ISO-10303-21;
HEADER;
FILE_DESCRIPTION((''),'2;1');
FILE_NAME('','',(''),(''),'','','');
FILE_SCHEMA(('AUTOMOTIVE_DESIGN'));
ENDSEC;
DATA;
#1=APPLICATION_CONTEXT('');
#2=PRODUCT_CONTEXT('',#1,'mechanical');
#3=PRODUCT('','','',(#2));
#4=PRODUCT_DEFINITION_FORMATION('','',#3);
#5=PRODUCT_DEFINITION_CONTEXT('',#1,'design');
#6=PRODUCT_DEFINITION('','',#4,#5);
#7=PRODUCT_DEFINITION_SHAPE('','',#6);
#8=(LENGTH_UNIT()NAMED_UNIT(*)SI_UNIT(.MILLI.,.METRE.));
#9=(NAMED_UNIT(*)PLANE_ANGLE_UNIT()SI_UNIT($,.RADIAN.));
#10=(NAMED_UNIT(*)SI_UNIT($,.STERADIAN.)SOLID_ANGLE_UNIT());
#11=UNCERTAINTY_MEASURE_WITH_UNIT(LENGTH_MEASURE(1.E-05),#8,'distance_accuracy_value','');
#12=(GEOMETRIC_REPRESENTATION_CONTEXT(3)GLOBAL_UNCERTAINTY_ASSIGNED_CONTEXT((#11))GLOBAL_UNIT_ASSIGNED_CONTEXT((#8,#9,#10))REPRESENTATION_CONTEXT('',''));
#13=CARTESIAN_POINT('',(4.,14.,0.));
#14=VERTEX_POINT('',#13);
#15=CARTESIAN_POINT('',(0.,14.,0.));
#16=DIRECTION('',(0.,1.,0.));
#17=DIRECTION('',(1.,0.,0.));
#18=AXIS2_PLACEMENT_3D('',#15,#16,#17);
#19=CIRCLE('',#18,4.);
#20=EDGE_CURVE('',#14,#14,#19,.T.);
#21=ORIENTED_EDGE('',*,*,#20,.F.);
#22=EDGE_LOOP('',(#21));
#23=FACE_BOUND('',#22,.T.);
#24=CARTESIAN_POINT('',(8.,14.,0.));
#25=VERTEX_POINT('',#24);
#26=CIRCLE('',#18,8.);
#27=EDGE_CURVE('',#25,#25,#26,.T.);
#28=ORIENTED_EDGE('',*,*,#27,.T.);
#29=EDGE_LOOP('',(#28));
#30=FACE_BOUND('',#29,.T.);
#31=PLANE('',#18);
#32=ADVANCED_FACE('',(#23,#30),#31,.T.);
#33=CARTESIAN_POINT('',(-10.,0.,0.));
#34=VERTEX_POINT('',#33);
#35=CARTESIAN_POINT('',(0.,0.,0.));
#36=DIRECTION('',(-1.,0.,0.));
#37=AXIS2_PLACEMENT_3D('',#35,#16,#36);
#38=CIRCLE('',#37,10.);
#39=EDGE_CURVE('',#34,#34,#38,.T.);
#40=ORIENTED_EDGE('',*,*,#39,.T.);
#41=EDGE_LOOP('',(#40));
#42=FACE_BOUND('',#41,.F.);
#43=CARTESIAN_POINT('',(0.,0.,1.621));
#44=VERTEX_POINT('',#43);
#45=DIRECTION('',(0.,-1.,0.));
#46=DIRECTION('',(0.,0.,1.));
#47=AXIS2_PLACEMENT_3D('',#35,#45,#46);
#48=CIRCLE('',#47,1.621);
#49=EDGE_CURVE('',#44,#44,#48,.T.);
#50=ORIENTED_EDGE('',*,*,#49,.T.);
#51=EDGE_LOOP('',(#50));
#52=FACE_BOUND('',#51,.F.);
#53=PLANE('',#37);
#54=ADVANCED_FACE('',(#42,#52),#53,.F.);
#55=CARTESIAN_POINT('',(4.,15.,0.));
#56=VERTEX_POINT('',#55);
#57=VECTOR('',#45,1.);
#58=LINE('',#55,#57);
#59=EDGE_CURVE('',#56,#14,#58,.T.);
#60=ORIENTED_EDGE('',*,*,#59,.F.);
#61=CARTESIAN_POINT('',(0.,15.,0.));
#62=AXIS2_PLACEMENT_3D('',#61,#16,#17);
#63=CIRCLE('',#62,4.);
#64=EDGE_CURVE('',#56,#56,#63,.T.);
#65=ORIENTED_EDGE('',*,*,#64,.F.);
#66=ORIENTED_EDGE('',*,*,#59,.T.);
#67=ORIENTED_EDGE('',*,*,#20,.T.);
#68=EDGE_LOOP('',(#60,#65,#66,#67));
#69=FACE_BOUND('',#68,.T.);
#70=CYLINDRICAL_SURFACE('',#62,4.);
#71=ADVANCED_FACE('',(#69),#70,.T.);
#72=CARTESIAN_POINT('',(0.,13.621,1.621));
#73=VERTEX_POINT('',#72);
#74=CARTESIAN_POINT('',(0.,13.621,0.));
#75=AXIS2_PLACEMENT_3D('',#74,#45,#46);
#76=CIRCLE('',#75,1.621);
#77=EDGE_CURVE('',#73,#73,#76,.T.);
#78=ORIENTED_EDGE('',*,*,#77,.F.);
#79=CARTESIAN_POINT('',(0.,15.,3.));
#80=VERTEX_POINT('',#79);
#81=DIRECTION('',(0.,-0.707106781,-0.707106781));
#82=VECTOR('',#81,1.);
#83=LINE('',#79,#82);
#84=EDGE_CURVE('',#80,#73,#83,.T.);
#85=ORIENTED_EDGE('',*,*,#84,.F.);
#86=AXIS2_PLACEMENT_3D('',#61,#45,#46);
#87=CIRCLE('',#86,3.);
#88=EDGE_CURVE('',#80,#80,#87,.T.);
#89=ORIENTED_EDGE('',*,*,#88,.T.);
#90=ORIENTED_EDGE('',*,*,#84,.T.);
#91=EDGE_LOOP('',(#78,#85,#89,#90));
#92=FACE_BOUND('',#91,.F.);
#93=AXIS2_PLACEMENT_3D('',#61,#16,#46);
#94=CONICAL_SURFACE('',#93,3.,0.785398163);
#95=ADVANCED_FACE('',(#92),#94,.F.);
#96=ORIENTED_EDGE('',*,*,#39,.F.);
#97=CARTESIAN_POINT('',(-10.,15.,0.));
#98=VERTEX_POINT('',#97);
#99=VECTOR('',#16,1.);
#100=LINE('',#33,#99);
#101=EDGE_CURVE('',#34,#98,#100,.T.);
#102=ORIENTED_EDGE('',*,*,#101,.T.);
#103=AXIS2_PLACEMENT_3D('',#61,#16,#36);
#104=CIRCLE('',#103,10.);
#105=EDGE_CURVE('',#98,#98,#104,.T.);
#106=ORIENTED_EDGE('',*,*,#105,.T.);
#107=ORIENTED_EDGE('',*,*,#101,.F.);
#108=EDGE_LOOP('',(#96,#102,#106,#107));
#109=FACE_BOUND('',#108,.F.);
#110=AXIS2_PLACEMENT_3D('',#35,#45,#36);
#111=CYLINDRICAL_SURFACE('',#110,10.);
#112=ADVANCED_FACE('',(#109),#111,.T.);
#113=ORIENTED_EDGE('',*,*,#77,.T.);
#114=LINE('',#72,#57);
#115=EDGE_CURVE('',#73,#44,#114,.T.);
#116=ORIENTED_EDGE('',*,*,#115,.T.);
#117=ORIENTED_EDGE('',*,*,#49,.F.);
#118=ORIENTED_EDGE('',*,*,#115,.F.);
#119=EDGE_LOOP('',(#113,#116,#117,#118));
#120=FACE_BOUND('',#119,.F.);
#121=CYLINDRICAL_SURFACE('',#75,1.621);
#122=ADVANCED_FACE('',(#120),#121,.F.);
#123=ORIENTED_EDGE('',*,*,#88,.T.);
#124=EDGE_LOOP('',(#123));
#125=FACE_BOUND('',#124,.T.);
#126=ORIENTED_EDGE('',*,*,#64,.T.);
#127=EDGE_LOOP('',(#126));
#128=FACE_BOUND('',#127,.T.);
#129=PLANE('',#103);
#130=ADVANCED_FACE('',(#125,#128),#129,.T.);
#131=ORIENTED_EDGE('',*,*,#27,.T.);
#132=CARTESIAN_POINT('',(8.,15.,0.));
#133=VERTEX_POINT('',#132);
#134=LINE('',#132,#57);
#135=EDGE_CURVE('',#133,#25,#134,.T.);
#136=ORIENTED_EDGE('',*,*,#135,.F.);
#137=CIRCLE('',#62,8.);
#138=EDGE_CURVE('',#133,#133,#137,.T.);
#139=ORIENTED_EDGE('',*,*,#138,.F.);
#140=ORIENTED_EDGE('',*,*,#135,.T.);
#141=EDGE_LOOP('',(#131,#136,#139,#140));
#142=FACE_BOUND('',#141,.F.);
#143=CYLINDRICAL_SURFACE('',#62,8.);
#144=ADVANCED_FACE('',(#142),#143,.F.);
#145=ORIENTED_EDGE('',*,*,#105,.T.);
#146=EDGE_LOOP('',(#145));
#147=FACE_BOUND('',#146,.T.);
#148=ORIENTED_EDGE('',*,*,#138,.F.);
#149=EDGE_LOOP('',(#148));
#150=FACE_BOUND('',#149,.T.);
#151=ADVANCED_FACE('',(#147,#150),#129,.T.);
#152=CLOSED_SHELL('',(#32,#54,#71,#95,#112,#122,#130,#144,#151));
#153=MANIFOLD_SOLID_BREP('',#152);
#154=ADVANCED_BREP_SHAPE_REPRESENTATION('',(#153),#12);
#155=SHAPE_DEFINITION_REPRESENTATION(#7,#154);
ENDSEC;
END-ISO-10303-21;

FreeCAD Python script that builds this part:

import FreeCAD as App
import Part
import Sketcher

V = App.Vector
Q = App.Units.Quantity

doc = App.newDocument("Part")
body = doc.addObject("PartDesign::Body", "Body")

sketch1 = body.newObject("Sketcher::SketchObject", "Sketch")
sketch1.AttachmentSupport = (doc.getObject("XZ_Plane"), [""])
sketch1.MapMode = "FlatFace"
sketch1.addGeometry(Part.Circle(V(0, 0, 0), V(0, 0, 1), 10), False)
sketch1.addConstraint([
    Sketcher.Constraint("Coincident", 0, 3, -1, 1),
    Sketcher.Constraint("Diameter", 0, Q("20 mm")),
])
pad1 = body.newObject("PartDesign::Pad", "Pad")
pad1.Profile = sketch1
pad1.Length = 15
pad1.Reversed = True

sketch2 = body.newObject("Sketcher::SketchObject", "Sketch001")
sketch2.AttachmentSupport = (doc.getObject("XZ_Plane"), [""])
sketch2.MapMode = "FlatFace"
sketch2.AttachmentOffset = App.Placement(V(0, 0, -15), App.Rotation())
sketch2.addGeometry([
    Part.Circle(V(0, 0, 0), V(0, 0, 1), 8),
    Part.Circle(V(0, 0, 0), V(0, 0, 1), 4),
], False)
sketch2.addConstraint([
    Sketcher.Constraint("Coincident", 0, 3, -1, 1),
    Sketcher.Constraint("Coincident", 1, 3, -1, 1),
    Sketcher.Constraint("Diameter", 0, Q("16 mm")),
    Sketcher.Constraint("Diameter", 1, Q("8 mm")),
])
pocket1 = body.newObject("PartDesign::Pocket", "Pocket")
pocket1.Profile = sketch2
pocket1.Length = 9
pocket1.Reversed = True

sketch3 = body.newObject("Sketcher::SketchObject", "Sketch002")
sketch3.AttachmentSupport = (doc.getObject("XZ_Plane"), [""])
sketch3.MapMode = "FlatFace"
sketch3.AttachmentOffset = App.Placement(V(0, 0, -6), App.Rotation())
sketch3.addGeometry([
    Part.Circle(V(0, 0, 0), V(0, 0, 1), 8),
    Part.Circle(V(0, 0, 0), V(0, 0, 1), 4),
], False)
sketch3.addConstraint([
    Sketcher.Constraint("Coincident", 0, 3, -1, 1),
    Sketcher.Constraint("Coincident", 1, 3, -1, 1),
    Sketcher.Constraint("Diameter", 0, Q("16 mm")),
    Sketcher.Constraint("Diameter", 1, Q("8 mm")),
])
pad2 = body.newObject("PartDesign::Pad", "Pad001")
pad2.Profile = sketch3
pad2.Length = 8
pad2.Reversed = True

sketch4 = body.newObject("Sketcher::SketchObject", "Sketch003")
sketch4.AttachmentSupport = (doc.getObject("XZ_Plane"), [""])
sketch4.MapMode = "FlatFace"
sketch4.AttachmentOffset = App.Placement(V(0, 0, -15), App.Rotation())
sketch4.addGeometry(Part.Circle(V(0, 0, 0), V(0, 0, 1), 1.6), False)
sketch4.addConstraint([
    Sketcher.Constraint("Coincident", 0, 3, -1, 1),
    Sketcher.Constraint("Diameter", 0, Q("3.242 mm")),
])
doc.recompute()
hole = body.newObject("PartDesign::Hole", "Hole")
hole.Profile = sketch4
hole.ThreadType = "None"
hole.Diameter = 3.242
hole.DepthType = "ThroughAll"
hole.HoleCutType = "Countersink"
hole.HoleCutDiameter = 6
hole.HoleCutCountersinkAngle = 90
hole.Reversed = True

doc.recompute()
